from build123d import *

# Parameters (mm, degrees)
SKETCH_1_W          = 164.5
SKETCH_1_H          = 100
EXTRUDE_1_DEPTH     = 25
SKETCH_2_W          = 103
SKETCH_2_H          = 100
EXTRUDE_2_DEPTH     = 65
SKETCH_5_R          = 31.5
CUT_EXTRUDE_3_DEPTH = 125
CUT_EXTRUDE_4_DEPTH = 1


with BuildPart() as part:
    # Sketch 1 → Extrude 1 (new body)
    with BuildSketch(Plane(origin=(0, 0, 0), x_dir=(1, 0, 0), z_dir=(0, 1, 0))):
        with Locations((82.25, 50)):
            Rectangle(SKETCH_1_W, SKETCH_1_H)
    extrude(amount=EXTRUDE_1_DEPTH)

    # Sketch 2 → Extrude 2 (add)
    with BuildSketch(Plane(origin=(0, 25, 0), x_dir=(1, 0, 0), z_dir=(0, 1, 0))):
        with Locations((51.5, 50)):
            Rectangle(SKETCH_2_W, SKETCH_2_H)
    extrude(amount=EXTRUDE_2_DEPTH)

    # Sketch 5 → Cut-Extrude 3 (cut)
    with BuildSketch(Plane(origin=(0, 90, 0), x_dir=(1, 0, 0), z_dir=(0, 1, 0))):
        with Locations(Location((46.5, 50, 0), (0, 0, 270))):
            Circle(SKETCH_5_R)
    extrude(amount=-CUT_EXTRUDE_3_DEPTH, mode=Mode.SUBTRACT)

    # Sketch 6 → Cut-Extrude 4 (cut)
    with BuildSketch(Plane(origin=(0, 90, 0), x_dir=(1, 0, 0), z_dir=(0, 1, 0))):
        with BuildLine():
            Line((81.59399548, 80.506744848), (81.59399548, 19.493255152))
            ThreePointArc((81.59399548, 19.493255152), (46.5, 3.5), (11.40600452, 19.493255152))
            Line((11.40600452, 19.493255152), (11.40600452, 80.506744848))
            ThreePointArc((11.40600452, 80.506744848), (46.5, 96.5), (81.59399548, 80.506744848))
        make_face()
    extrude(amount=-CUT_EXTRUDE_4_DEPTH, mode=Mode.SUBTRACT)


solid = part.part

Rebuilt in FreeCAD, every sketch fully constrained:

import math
import FreeCAD as App
import Part
import Sketcher
Q = App.Units.Quantity


def add_polygon(sketch, points):
    """Adds a closed chain of lines whose ends are joined by coincident constraints."""
    first, n = sketch.GeometryCount, len(points)
    for a, b in zip(points, points[1:] + points[:1]):
        sketch.addGeometry(Part.LineSegment(App.Vector(*a, 0), App.Vector(*b, 0)), False)
    for i in range(n):
        sketch.addConstraint(Sketcher.Constraint("Coincident", first + i, 2, first + (i + 1) % n, 1))

doc = App.newDocument("Part")
body = doc.addObject("PartDesign::Body", "Body")

sketch1 = body.newObject("Sketcher::SketchObject", "Sketch")
sketch1.AttachmentSupport = (doc.getObject("XZ_Plane"), [""])
sketch1.MapMode = "FlatFace"
add_polygon(sketch1, [(0, -100), (0, 0), (164, 0), (164, -100)])
sketch1.addConstraint([
    Sketcher.Constraint("Vertical", 0),
    Sketcher.Constraint("Horizontal", 1),
    Sketcher.Constraint("Vertical", 2),
    Sketcher.Constraint("Horizontal", 3),
    Sketcher.Constraint("Coincident", 0, 2, -1, 1),
    Sketcher.Constraint("DistanceY", 0, 1, 0, 2, Q("100 mm")),
    Sketcher.Constraint("DistanceX", 1, 1, 1, 2, Q("164.5 mm")),
])
pad1 = body.newObject("PartDesign::Pad", "Pad")
pad1.Profile = sketch1
pad1.Length = 25
pad1.Reversed = True

sketch2 = body.newObject("Sketcher::SketchObject", "Sketch001")
sketch2.AttachmentSupport = (doc.getObject("XZ_Plane"), [""])
sketch2.MapMode = "FlatFace"
sketch2.AttachmentOffset = App.Placement(App.Vector(0, 0, -25), App.Rotation())
add_polygon(sketch2, [(0, -100), (0, 0), (103, 0), (103, -100)])
sketch2.addConstraint([
    Sketcher.Constraint("Vertical", 0),
    Sketcher.Constraint("Horizontal", 1),
    Sketcher.Constraint("Vertical", 2),
    Sketcher.Constraint("Horizontal", 3),
    Sketcher.Constraint("Coincident", 0, 2, -1, 1),
    Sketcher.Constraint("DistanceX", 1, 1, 1, 2, Q("103 mm")),
    Sketcher.Constraint("DistanceY", 0, 1, 0, 2, Q("100 mm")),
])
pad2 = body.newObject("PartDesign::Pad", "Pad001")
pad2.Profile = sketch2
pad2.Length = 65
pad2.Reversed = True

sketch3 = body.newObject("Sketcher::SketchObject", "Sketch002")
sketch3.AttachmentSupport = (doc.getObject("XZ_Plane"), [""])
sketch3.MapMode = "FlatFace"
sketch3.AttachmentOffset = App.Placement(App.Vector(0, 0, -90), App.Rotation())
sketch3.addGeometry(Part.Circle(App.Vector(46, -50, 0), App.Vector(0, 0, 1), 32), False)
sketch3.addConstraint([
    Sketcher.Constraint("Diameter", 0, Q("63 mm")),
    Sketcher.Constraint("DistanceY", 0, 3, -1, 1, Q("50 mm")),
    Sketcher.Constraint("DistanceX", -1, 1, 0, 3, Q("46.5 mm")),
])
pocket1 = body.newObject("PartDesign::Pocket", "Pocket")
pocket1.Profile = sketch3
pocket1.Length = 125
pocket1.Reversed = True

sketch4 = body.newObject("Sketcher::SketchObject", "Sketch003")
sketch4.AttachmentSupport = (doc.getObject("XZ_Plane"), [""])
sketch4.MapMode = "FlatFace"
sketch4.AttachmentOffset = App.Placement(App.Vector(0, 0, -90), App.Rotation())
sketch4.addGeometry([
    Part.LineSegment(App.Vector(82, -19, 0), App.Vector(82, -81, 0)),
    Part.ArcOfCircle(Part.Circle(App.Vector(46, -50, 0), App.Vector(0, 0, 1), 46), math.radians(-139), math.radians(-41)),
    Part.LineSegment(App.Vector(11, -81, 0), App.Vector(11, -19, 0)),
    Part.ArcOfCircle(Part.Circle(App.Vector(46, -50, 0), App.Vector(0, 0, 1), 46), math.radians(41), math.radians(139)),
], False)
sketch4.addConstraint([
    Sketcher.Constraint("Coincident", 0, 2, 1, 2),
    Sketcher.Constraint("Coincident", 1, 1, 2, 1),
    Sketcher.Constraint("Coincident", 2, 2, 3, 2),
    Sketcher.Constraint("Coincident", 3, 1, 0, 1),
    Sketcher.Constraint("Vertical", 0),
    Sketcher.Constraint("Vertical", 2),
    Sketcher.Constraint("Coincident", 3, 3, 1, 3),
    Sketcher.Constraint("Equal", 1, 3),
    Sketcher.Constraint("Horizontal", 0, 2, 1, 1),
    Sketcher.Constraint("Radius", 1, Q("46.5 mm")),
    Sketcher.Constraint("DistanceY", 1, 3, -1, 1, Q("50 mm")),
    Sketcher.Constraint("DistanceX", -1, 1, 1, 3, Q("46.5 mm")),
    Sketcher.Constraint("DistanceY", 0, 2, 0, 1, Q("61.01349 mm")),
])
pocket2 = body.newObject("PartDesign::Pocket", "Pocket001")
pocket2.Profile = sketch4
pocket2.Length = 1
pocket2.Reversed = True

doc.recompute()
